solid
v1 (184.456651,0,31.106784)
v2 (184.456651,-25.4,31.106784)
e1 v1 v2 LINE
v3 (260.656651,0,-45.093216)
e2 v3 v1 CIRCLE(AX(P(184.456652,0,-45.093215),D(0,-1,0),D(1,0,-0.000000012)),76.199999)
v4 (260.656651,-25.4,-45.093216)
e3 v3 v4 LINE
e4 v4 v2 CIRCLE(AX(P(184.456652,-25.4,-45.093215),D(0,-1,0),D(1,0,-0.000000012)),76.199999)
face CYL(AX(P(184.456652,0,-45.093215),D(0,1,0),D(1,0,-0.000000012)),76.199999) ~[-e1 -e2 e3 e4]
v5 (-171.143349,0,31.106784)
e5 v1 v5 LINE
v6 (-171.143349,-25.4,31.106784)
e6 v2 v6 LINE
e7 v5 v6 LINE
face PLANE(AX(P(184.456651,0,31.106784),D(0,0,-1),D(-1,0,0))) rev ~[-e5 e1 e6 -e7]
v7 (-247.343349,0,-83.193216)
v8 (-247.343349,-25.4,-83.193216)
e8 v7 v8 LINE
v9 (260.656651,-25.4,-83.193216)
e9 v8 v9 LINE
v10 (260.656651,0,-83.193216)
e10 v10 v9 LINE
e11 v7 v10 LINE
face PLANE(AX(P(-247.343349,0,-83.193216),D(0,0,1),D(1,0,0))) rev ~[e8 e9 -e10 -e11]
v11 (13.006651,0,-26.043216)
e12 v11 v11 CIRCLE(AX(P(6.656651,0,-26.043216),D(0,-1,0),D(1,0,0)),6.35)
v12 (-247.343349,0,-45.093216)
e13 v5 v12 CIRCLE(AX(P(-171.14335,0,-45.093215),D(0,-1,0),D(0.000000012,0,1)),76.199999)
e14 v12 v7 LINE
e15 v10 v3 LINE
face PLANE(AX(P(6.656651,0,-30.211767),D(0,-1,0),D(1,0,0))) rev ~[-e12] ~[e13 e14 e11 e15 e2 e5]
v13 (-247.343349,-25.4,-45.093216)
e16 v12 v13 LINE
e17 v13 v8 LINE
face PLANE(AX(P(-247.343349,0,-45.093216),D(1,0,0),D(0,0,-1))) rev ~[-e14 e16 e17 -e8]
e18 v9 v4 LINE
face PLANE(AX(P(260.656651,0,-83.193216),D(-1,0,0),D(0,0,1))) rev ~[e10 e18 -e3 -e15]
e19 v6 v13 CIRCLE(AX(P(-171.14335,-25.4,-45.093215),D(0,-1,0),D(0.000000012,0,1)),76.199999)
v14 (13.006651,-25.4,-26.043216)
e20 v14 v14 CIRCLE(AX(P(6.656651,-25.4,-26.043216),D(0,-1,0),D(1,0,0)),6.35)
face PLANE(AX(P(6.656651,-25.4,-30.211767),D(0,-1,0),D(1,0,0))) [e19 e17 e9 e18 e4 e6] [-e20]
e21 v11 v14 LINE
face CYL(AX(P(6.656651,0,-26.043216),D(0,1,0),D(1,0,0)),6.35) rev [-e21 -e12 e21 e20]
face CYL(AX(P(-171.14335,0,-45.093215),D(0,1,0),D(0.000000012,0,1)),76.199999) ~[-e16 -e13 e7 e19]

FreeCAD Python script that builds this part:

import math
import FreeCAD as App
import Part
import Sketcher
Q = App.Units.Quantity

doc = App.newDocument("Part")
body = doc.addObject("PartDesign::Body", "Body")

# Sketch on XZ plane
sketch1 = body.newObject("Sketcher::SketchObject", "Sketch")
sketch1.AttachmentSupport = (doc.getObject("XZ_Plane"), [""])
sketch1.MapMode = "FlatFace"
sketch1.addGeometry([
    Part.ArcOfCircle(Part.Circle(App.Vector(-171.14335, -45.093215, 0), App.Vector(0, 0, 1), 76.199999), math.radians(89.999999), math.radians(180.000001)),  # 0
    Part.LineSegment(App.Vector(-247.343349, -45.093216, 0), App.Vector(-247.343349, -83.193216, 0)),  # 1
    Part.LineSegment(App.Vector(-247.343349, -83.193216, 0), App.Vector(260.656651, -83.193216, 0)),  # 2
    Part.LineSegment(App.Vector(260.656651, -83.193216, 0), App.Vector(260.656651, -45.093216, 0)),  # 3
    Part.ArcOfCircle(Part.Circle(App.Vector(184.456652, -45.093215, 0), App.Vector(0, 0, 1), 76.199999), math.radians(-0.000001), math.radians(90.000001)),  # 4
    Part.LineSegment(App.Vector(184.456651, 31.106784, 0), App.Vector(-171.143349, 31.106784, 0)),  # 5
    Part.Circle(App.Vector(6.656651, -26.043216, 0), App.Vector(0, 0, 1), 6.35),  # 6
], False)
sketch1.addConstraint([
    Sketcher.Constraint("Tangent", 0, 2, 1, 1),
    Sketcher.Constraint("Coincident", 1, 2, 2, 1),
    Sketcher.Constraint("Coincident", 2, 2, 3, 1),
    Sketcher.Constraint("Tangent", 3, 2, 4, 1),
    Sketcher.Constraint("Tangent", 4, 2, 5, 1),
    Sketcher.Constraint("Tangent", 5, 2, 0, 1),
    Sketcher.Constraint("Vertical", 1),
    Sketcher.Constraint("Horizontal", 2),
    Sketcher.Constraint("Vertical", 3),
    Sketcher.Constraint("Horizontal", 5),
    Sketcher.Constraint("Equal", 0, 4),
    Sketcher.Constraint("Radius", 0, Q("3 in")),
    Sketcher.Constraint("Diameter", 6, Q("0.5 in")),
    Sketcher.Constraint("DistanceX", 2, 1, 2, 2, Q("20 in")),
    Sketcher.Constraint("DistanceY", 1, 2, 1, 1, Q("1.5 in")),
    Sketcher.Constraint("DistanceX", 6, 3, 4, 3, Q("7 in")),
    Sketcher.Constraint("DistanceY", 4, 3, 6, 3, Q("0.75 in")),
    Sketcher.Constraint("DistanceX", 0, 3, -1, 1, Q("171.14335 mm")),
    Sketcher.Constraint("DistanceY", 0, 3, -1, 1, Q("45.093215 mm")),
])
pad1 = body.newObject("PartDesign::Pad", "Pad")
pad1.Profile = sketch1
pad1.Length = Q("1 in")

doc.recompute()
